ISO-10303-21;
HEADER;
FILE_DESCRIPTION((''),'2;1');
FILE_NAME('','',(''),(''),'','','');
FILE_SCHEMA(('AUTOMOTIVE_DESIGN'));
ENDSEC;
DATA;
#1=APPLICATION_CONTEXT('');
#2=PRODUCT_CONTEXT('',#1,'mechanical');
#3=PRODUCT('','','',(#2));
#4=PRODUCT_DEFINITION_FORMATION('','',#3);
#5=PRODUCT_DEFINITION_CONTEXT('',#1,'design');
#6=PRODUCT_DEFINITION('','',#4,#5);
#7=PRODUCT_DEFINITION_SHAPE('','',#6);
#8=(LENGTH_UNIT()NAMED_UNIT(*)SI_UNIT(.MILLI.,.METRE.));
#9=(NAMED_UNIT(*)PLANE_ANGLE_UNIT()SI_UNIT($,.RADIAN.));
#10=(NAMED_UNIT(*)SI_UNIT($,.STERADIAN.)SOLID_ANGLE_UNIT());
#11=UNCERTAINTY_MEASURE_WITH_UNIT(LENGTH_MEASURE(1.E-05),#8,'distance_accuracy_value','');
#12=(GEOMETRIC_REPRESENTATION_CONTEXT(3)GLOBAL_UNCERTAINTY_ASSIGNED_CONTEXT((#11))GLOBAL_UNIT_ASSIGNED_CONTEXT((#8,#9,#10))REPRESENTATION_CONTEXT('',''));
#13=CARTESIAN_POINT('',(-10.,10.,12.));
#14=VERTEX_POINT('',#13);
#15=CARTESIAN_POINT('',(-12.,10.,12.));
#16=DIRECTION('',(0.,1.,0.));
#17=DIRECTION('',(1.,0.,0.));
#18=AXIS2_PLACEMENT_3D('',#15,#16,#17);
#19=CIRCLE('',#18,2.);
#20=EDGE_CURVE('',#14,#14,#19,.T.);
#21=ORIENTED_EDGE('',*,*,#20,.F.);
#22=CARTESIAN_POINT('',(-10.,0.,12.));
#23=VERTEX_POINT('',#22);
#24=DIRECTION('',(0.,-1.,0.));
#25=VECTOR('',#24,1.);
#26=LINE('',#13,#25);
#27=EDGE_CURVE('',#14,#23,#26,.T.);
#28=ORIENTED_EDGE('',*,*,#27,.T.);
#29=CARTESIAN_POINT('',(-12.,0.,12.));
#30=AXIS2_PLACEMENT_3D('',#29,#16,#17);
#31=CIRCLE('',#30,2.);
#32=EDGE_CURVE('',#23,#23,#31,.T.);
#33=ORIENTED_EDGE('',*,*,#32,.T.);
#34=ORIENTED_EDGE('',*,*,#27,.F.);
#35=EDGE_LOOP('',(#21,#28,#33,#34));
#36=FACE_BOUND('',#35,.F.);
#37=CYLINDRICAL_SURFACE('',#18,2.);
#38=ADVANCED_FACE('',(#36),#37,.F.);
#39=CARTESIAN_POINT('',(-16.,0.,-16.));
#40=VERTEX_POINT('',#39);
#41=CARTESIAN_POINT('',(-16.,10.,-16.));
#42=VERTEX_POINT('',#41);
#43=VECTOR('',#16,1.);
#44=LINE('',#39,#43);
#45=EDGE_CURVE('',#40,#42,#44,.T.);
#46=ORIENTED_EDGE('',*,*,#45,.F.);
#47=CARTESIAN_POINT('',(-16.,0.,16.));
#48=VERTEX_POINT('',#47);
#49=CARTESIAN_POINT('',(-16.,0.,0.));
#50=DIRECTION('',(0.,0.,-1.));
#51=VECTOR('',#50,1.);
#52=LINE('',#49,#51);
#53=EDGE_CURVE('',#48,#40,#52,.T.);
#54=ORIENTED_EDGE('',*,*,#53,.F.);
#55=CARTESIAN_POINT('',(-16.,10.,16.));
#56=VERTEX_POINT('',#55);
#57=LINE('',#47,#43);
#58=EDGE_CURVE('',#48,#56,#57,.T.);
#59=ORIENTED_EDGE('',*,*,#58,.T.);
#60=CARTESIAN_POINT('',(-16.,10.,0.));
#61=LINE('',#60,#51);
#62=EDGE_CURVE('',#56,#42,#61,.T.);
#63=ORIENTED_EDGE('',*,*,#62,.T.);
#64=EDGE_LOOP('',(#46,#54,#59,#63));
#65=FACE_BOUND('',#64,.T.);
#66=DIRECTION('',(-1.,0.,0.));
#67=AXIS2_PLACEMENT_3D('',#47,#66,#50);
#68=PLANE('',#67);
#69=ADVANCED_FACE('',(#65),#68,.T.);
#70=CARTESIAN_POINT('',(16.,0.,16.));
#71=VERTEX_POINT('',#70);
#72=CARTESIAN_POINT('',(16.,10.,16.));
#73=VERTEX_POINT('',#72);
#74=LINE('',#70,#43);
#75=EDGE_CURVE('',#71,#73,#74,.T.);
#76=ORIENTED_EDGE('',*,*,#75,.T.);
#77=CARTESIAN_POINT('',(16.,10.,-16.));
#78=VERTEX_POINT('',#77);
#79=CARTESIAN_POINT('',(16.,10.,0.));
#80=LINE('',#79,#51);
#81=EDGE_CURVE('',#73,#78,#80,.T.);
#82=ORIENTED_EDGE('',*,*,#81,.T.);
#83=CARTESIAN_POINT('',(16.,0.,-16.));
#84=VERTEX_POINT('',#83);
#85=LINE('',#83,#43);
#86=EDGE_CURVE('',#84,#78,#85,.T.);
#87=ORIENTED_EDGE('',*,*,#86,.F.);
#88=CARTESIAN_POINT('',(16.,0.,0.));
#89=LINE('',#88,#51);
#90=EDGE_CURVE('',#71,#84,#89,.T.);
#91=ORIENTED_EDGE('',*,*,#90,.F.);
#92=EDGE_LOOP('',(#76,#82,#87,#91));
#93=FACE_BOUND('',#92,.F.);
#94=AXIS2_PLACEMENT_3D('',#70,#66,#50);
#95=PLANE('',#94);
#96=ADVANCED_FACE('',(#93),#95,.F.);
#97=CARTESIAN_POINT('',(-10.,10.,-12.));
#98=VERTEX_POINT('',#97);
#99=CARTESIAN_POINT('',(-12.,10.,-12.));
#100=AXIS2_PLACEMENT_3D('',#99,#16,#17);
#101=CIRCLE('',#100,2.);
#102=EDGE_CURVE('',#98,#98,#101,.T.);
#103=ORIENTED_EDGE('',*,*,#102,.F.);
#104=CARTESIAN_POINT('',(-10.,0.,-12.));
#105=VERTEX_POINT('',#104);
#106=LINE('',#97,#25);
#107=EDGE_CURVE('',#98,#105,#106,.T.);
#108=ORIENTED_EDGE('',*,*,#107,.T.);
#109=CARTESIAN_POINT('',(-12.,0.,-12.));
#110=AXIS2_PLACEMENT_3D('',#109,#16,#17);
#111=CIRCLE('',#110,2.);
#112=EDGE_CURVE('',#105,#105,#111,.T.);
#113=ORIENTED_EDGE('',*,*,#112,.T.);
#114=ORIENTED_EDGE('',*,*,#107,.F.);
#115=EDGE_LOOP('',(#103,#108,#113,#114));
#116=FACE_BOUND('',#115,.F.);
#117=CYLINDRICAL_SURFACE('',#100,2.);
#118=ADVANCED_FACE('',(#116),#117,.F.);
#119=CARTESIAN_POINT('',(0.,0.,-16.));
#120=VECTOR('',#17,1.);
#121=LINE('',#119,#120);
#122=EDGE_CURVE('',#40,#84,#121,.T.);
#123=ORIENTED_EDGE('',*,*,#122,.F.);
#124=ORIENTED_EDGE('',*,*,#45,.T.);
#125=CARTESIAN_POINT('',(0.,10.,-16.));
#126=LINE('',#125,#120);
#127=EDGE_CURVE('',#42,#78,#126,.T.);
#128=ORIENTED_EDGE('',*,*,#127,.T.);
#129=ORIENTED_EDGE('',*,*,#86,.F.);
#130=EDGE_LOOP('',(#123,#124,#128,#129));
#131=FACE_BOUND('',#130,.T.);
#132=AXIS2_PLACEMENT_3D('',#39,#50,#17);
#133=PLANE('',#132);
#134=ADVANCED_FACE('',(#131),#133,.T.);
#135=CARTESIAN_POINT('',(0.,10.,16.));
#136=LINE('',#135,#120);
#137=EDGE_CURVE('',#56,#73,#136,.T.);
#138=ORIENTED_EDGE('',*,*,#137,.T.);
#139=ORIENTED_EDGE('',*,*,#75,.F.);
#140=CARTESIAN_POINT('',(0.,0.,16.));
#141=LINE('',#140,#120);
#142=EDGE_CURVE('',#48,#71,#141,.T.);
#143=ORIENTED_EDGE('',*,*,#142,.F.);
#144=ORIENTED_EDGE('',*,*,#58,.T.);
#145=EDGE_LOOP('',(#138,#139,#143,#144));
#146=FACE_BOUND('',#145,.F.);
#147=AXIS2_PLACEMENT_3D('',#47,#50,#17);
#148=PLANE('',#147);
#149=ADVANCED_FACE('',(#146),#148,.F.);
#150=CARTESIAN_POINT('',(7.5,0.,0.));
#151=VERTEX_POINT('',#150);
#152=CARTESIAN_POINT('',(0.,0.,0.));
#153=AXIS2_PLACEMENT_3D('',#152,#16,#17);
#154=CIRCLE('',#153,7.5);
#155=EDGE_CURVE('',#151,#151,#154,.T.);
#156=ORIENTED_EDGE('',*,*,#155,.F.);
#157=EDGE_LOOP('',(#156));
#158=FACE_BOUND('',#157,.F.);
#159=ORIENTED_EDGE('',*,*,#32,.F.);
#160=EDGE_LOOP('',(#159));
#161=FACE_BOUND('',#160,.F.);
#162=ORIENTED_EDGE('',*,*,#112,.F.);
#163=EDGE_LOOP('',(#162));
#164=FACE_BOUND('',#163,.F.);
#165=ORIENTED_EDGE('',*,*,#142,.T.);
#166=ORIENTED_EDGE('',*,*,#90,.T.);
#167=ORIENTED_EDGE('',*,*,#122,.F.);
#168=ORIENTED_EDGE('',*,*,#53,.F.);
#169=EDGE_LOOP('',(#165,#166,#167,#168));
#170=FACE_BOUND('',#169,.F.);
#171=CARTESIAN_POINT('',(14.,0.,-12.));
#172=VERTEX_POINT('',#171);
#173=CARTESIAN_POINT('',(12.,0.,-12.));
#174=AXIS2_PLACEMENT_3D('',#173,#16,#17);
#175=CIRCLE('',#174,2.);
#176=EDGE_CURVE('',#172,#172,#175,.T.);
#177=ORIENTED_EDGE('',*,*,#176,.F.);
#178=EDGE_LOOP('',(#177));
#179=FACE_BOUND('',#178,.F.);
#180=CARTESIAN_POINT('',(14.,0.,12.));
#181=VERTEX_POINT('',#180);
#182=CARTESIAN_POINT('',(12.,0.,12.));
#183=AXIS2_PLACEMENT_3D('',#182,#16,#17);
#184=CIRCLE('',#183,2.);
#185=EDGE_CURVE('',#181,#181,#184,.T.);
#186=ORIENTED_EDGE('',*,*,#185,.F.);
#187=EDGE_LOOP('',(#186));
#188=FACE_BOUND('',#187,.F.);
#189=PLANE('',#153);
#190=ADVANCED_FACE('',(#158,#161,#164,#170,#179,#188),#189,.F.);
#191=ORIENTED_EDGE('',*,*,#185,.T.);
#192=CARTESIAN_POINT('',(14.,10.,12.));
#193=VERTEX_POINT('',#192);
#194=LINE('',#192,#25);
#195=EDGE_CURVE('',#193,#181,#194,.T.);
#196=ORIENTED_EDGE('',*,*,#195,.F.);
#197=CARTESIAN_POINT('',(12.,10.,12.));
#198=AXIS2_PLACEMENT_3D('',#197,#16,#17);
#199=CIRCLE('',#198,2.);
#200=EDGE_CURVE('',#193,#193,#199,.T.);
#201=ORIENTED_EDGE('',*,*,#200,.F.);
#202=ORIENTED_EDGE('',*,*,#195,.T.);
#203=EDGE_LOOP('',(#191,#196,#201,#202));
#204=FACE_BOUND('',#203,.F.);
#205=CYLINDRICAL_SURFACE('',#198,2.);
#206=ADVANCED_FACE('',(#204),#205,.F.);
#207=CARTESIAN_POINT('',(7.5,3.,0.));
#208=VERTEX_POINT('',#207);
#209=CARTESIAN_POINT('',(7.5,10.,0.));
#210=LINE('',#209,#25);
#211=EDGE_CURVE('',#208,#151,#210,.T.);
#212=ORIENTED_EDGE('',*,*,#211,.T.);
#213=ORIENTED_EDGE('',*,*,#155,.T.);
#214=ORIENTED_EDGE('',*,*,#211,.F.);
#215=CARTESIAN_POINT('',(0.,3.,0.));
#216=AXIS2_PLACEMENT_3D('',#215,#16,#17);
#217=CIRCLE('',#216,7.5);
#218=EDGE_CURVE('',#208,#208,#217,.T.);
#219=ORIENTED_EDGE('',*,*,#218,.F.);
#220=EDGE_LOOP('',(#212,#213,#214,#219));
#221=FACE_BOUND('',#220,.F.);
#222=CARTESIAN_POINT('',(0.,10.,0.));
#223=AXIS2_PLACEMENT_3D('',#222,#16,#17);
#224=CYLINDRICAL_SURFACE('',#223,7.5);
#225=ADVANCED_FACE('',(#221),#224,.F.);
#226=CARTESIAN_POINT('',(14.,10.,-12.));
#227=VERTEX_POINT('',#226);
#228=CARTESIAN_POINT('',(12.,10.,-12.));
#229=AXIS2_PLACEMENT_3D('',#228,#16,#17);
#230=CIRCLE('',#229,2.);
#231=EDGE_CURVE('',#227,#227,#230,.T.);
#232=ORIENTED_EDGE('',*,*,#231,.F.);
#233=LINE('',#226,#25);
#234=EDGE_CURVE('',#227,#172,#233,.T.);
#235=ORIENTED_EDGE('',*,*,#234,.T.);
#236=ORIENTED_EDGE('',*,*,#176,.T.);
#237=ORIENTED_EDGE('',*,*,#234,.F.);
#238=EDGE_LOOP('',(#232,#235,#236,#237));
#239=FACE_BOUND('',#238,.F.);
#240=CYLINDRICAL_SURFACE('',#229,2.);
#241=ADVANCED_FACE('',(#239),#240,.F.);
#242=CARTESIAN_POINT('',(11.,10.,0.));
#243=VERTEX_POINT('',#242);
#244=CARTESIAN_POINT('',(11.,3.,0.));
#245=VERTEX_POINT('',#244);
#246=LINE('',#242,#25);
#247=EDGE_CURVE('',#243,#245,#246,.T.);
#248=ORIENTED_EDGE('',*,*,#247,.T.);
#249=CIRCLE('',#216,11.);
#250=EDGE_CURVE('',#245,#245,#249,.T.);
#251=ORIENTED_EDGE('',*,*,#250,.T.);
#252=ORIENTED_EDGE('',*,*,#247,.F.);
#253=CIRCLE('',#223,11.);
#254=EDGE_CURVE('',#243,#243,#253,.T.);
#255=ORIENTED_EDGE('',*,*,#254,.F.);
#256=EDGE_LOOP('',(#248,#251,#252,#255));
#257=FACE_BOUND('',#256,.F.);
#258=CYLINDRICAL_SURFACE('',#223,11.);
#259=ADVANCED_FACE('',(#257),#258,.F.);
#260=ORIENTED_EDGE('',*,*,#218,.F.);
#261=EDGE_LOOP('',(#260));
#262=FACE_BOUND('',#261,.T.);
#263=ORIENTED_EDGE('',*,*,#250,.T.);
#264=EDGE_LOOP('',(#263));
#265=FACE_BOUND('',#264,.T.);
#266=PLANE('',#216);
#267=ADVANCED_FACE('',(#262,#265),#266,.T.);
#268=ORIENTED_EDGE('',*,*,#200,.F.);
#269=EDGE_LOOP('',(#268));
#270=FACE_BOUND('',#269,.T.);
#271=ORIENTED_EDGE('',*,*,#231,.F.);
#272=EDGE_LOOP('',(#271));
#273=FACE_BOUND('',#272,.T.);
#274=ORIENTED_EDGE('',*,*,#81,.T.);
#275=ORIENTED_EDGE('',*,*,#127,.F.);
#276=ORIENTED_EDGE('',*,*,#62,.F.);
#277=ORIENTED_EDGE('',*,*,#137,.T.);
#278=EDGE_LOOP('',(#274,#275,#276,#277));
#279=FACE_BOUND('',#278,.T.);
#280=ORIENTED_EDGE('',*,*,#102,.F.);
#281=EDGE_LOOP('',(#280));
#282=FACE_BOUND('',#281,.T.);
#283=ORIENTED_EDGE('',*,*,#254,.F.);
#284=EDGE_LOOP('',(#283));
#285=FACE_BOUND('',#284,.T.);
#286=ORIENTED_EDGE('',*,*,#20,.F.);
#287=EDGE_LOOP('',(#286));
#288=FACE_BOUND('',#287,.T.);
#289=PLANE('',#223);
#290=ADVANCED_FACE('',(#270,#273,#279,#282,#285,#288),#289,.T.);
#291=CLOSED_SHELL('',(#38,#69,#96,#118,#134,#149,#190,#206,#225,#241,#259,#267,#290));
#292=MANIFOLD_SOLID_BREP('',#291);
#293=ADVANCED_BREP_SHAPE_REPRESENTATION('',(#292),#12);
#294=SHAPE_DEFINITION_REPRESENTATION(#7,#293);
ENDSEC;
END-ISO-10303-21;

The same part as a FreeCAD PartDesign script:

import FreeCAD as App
import Part
import Sketcher
Q = App.Units.Quantity


def add_polygon(sketch, points):
    """Adds a closed chain of lines whose ends are joined by coincident constraints."""
    first, n = sketch.GeometryCount, len(points)
    for a, b in zip(points, points[1:] + points[:1]):
        sketch.addGeometry(Part.LineSegment(App.Vector(*a, 0), App.Vector(*b, 0)), False)
    for i in range(n):
        sketch.addConstraint(Sketcher.Constraint("Coincident", first + i, 2, first + (i + 1) % n, 1))

doc = App.newDocument("Part")
body = doc.addObject("PartDesign::Body", "Body")

sketch1 = body.newObject("Sketcher::SketchObject", "Sketch")
sketch1.AttachmentSupport = (doc.getObject("XZ_Plane"), [""])
sketch1.MapMode = "FlatFace"
add_polygon(sketch1, [(-16, -16), (-16, 16), (16, 16), (16, -16)])
sketch1.addConstraint([
    Sketcher.Constraint("Vertical", 0),
    Sketcher.Constraint("Horizontal", 1),
    Sketcher.Constraint("Vertical", 2),
    Sketcher.Constraint("Horizontal", 3),
    Sketcher.Constraint("Symmetric", 0, 2, 2, 2, -1, 1),
    Sketcher.Constraint("Equal", 3, 0),
    Sketcher.Constraint("DistanceX", 1, 1, 1, 2, Q("32 mm")),
])
pad1 = body.newObject("PartDesign::Pad", "Pad")
pad1.Profile = sketch1
pad1.Length = 10
pad1.Reversed = True

sketch2 = body.newObject("Sketcher::SketchObject", "Sketch001")
sketch2.AttachmentSupport = (doc.getObject("XZ_Plane"), [""])
sketch2.MapMode = "FlatFace"
sketch2.AttachmentOffset = App.Placement(App.Vector(0, 0, -10), App.Rotation())
sketch2.addGeometry(Part.Circle(App.Vector(0, 0, 0), App.Vector(0, 0, 1), 11), False)
sketch2.addConstraint([
    Sketcher.Constraint("Coincident", 0, 3, -1, 1),
    Sketcher.Constraint("Diameter", 0, Q("22 mm")),
])
pocket1 = body.newObject("PartDesign::Pocket", "Pocket")
pocket1.Profile = sketch2
pocket1.Length = 7
pocket1.Reversed = True

sketch3 = body.newObject("Sketcher::SketchObject", "Sketch002")
sketch3.AttachmentSupport = (doc.getObject("XZ_Plane"), [""])
sketch3.MapMode = "FlatFace"
sketch3.AttachmentOffset = App.Placement(App.Vector(0, 0, -10), App.Rotation())
sketch3.addGeometry([
    Part.Circle(App.Vector(-12, -12, 0), App.Vector(0, 0, 1), 2),
    Part.Circle(App.Vector(12, -12, 0), App.Vector(0, 0, 1), 2),
    Part.Circle(App.Vector(12, 12, 0), App.Vector(0, 0, 1), 2),
    Part.Circle(App.Vector(-12, 12, 0), App.Vector(0, 0, 1), 2),
    Part.Circle(App.Vector(0, 0, 0), App.Vector(0, 0, 1), 7.5),
], False)
sketch3.addConstraint([
    Sketcher.Constraint("Coincident", 4, 3, -1, 1),
    Sketcher.Constraint("Equal", 0, 1),
    Sketcher.Constraint("Equal", 1, 2),
    Sketcher.Constraint("Equal", 2, 3),
    Sketcher.Constraint("Symmetric", 0, 3, 2, 3, -1, 1),
    Sketcher.Constraint("Symmetric", 1, 3, 3, 3, -1, 1),
    Sketcher.Constraint("Symmetric", 0, 3, 1, 3, -2),
    Sketcher.Constraint("Diameter", 0, Q("4 mm")),
    Sketcher.Constraint("Diameter", 4, Q("15 mm")),
    Sketcher.Constraint("DistanceX", 0, 3, -1, 1, Q("12 mm")),
    Sketcher.Constraint("DistanceY", 0, 3, -1, 1, Q("12 mm")),
])
pocket2 = body.newObject("PartDesign::Pocket", "Pocket001")
pocket2.Profile = sketch3
pocket2.Type = "ThroughAll"
pocket2.Reversed = True

doc.recompute()
